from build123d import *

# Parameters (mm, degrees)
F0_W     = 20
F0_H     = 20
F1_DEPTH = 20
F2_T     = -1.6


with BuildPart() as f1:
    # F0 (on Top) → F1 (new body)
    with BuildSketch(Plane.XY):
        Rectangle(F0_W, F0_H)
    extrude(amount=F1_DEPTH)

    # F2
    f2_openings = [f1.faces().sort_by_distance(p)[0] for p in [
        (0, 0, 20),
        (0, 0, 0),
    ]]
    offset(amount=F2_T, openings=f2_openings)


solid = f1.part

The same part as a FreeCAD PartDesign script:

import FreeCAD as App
import Part
import Sketcher
Q = App.Units.Quantity


def faces_at(feature, points):
    """Names of the faces that lie closest to the given points."""
    faces = feature.Shape.Faces
    near = lambda p: min(range(len(faces)), key=lambda i: faces[i].distToShape(Part.Vertex(*p))[0])
    return sorted({f"Face{near(p) + 1}" for p in points})


def add_polygon(sketch, points):
    """Adds a closed chain of lines whose ends are joined by coincident constraints."""
    first, n = sketch.GeometryCount, len(points)
    for a, b in zip(points, points[1:] + points[:1]):
        sketch.addGeometry(Part.LineSegment(App.Vector(*a, 0), App.Vector(*b, 0)), False)
    for i in range(n):
        sketch.addConstraint(Sketcher.Constraint("Coincident", first + i, 2, first + (i + 1) % n, 1))

doc = App.newDocument("Part")
params = doc.addObject("Spreadsheet::Sheet", "Params")
for row, (alias, value) in enumerate([
    ("sketch1_width", "20 mm"),
    ("pad1_length", "20 mm"),
    ("thickness_wall", "1.6 mm"),
], start=1):
    params.set(f"A{row}", alias)
    params.set(f"B{row}", "=" + value)
    params.setAlias(f"B{row}", alias)

body = doc.addObject("PartDesign::Body", "Body")

sketch1 = doc.addObject("Sketcher::SketchObject", "Sketch")
body.addObject(sketch1)
sketch1.AttachmentSupport = (doc.XY_Plane, [""])
sketch1.MapMode = "FlatFace"
add_polygon(sketch1, [(-10, 10), (-10, -10), (10, -10), (10, 10)])
sketch1.addConstraint(Sketcher.Constraint("Vertical", 0))
sketch1.addConstraint(Sketcher.Constraint("Horizontal", 1))
sketch1.addConstraint(Sketcher.Constraint("Vertical", 2))
sketch1.addConstraint(Sketcher.Constraint("Horizontal", 3))
sketch1.addConstraint(Sketcher.Constraint("Symmetric", 0, 2, 2, 2, -1, 1))
sketch1.addConstraint(Sketcher.Constraint("Equal", 3, 0))
sketch1.addConstraint(Sketcher.Constraint("DistanceX", 1, 1, 1, 2, Q("20 mm")))
sketch1.setExpression("Constraints[10]", "Params.sketch1_width")
pad1 = doc.addObject("PartDesign::Pad", "Pad")
body.addObject(pad1)
pad1.Profile = sketch1
pad1.setExpression("Length", "Params.pad1_length")
doc.recompute()

thickness = doc.addObject("PartDesign::Thickness", "Thickness")
body.addObject(thickness)
thickness.Base = (pad1, faces_at(pad1, [(0, 0, 20), (0, 0, 0)]))
thickness.setExpression("Value", "Params.thickness_wall")
thickness.Reversed = True
thickness.Join = "Arc"

doc.recompute()
